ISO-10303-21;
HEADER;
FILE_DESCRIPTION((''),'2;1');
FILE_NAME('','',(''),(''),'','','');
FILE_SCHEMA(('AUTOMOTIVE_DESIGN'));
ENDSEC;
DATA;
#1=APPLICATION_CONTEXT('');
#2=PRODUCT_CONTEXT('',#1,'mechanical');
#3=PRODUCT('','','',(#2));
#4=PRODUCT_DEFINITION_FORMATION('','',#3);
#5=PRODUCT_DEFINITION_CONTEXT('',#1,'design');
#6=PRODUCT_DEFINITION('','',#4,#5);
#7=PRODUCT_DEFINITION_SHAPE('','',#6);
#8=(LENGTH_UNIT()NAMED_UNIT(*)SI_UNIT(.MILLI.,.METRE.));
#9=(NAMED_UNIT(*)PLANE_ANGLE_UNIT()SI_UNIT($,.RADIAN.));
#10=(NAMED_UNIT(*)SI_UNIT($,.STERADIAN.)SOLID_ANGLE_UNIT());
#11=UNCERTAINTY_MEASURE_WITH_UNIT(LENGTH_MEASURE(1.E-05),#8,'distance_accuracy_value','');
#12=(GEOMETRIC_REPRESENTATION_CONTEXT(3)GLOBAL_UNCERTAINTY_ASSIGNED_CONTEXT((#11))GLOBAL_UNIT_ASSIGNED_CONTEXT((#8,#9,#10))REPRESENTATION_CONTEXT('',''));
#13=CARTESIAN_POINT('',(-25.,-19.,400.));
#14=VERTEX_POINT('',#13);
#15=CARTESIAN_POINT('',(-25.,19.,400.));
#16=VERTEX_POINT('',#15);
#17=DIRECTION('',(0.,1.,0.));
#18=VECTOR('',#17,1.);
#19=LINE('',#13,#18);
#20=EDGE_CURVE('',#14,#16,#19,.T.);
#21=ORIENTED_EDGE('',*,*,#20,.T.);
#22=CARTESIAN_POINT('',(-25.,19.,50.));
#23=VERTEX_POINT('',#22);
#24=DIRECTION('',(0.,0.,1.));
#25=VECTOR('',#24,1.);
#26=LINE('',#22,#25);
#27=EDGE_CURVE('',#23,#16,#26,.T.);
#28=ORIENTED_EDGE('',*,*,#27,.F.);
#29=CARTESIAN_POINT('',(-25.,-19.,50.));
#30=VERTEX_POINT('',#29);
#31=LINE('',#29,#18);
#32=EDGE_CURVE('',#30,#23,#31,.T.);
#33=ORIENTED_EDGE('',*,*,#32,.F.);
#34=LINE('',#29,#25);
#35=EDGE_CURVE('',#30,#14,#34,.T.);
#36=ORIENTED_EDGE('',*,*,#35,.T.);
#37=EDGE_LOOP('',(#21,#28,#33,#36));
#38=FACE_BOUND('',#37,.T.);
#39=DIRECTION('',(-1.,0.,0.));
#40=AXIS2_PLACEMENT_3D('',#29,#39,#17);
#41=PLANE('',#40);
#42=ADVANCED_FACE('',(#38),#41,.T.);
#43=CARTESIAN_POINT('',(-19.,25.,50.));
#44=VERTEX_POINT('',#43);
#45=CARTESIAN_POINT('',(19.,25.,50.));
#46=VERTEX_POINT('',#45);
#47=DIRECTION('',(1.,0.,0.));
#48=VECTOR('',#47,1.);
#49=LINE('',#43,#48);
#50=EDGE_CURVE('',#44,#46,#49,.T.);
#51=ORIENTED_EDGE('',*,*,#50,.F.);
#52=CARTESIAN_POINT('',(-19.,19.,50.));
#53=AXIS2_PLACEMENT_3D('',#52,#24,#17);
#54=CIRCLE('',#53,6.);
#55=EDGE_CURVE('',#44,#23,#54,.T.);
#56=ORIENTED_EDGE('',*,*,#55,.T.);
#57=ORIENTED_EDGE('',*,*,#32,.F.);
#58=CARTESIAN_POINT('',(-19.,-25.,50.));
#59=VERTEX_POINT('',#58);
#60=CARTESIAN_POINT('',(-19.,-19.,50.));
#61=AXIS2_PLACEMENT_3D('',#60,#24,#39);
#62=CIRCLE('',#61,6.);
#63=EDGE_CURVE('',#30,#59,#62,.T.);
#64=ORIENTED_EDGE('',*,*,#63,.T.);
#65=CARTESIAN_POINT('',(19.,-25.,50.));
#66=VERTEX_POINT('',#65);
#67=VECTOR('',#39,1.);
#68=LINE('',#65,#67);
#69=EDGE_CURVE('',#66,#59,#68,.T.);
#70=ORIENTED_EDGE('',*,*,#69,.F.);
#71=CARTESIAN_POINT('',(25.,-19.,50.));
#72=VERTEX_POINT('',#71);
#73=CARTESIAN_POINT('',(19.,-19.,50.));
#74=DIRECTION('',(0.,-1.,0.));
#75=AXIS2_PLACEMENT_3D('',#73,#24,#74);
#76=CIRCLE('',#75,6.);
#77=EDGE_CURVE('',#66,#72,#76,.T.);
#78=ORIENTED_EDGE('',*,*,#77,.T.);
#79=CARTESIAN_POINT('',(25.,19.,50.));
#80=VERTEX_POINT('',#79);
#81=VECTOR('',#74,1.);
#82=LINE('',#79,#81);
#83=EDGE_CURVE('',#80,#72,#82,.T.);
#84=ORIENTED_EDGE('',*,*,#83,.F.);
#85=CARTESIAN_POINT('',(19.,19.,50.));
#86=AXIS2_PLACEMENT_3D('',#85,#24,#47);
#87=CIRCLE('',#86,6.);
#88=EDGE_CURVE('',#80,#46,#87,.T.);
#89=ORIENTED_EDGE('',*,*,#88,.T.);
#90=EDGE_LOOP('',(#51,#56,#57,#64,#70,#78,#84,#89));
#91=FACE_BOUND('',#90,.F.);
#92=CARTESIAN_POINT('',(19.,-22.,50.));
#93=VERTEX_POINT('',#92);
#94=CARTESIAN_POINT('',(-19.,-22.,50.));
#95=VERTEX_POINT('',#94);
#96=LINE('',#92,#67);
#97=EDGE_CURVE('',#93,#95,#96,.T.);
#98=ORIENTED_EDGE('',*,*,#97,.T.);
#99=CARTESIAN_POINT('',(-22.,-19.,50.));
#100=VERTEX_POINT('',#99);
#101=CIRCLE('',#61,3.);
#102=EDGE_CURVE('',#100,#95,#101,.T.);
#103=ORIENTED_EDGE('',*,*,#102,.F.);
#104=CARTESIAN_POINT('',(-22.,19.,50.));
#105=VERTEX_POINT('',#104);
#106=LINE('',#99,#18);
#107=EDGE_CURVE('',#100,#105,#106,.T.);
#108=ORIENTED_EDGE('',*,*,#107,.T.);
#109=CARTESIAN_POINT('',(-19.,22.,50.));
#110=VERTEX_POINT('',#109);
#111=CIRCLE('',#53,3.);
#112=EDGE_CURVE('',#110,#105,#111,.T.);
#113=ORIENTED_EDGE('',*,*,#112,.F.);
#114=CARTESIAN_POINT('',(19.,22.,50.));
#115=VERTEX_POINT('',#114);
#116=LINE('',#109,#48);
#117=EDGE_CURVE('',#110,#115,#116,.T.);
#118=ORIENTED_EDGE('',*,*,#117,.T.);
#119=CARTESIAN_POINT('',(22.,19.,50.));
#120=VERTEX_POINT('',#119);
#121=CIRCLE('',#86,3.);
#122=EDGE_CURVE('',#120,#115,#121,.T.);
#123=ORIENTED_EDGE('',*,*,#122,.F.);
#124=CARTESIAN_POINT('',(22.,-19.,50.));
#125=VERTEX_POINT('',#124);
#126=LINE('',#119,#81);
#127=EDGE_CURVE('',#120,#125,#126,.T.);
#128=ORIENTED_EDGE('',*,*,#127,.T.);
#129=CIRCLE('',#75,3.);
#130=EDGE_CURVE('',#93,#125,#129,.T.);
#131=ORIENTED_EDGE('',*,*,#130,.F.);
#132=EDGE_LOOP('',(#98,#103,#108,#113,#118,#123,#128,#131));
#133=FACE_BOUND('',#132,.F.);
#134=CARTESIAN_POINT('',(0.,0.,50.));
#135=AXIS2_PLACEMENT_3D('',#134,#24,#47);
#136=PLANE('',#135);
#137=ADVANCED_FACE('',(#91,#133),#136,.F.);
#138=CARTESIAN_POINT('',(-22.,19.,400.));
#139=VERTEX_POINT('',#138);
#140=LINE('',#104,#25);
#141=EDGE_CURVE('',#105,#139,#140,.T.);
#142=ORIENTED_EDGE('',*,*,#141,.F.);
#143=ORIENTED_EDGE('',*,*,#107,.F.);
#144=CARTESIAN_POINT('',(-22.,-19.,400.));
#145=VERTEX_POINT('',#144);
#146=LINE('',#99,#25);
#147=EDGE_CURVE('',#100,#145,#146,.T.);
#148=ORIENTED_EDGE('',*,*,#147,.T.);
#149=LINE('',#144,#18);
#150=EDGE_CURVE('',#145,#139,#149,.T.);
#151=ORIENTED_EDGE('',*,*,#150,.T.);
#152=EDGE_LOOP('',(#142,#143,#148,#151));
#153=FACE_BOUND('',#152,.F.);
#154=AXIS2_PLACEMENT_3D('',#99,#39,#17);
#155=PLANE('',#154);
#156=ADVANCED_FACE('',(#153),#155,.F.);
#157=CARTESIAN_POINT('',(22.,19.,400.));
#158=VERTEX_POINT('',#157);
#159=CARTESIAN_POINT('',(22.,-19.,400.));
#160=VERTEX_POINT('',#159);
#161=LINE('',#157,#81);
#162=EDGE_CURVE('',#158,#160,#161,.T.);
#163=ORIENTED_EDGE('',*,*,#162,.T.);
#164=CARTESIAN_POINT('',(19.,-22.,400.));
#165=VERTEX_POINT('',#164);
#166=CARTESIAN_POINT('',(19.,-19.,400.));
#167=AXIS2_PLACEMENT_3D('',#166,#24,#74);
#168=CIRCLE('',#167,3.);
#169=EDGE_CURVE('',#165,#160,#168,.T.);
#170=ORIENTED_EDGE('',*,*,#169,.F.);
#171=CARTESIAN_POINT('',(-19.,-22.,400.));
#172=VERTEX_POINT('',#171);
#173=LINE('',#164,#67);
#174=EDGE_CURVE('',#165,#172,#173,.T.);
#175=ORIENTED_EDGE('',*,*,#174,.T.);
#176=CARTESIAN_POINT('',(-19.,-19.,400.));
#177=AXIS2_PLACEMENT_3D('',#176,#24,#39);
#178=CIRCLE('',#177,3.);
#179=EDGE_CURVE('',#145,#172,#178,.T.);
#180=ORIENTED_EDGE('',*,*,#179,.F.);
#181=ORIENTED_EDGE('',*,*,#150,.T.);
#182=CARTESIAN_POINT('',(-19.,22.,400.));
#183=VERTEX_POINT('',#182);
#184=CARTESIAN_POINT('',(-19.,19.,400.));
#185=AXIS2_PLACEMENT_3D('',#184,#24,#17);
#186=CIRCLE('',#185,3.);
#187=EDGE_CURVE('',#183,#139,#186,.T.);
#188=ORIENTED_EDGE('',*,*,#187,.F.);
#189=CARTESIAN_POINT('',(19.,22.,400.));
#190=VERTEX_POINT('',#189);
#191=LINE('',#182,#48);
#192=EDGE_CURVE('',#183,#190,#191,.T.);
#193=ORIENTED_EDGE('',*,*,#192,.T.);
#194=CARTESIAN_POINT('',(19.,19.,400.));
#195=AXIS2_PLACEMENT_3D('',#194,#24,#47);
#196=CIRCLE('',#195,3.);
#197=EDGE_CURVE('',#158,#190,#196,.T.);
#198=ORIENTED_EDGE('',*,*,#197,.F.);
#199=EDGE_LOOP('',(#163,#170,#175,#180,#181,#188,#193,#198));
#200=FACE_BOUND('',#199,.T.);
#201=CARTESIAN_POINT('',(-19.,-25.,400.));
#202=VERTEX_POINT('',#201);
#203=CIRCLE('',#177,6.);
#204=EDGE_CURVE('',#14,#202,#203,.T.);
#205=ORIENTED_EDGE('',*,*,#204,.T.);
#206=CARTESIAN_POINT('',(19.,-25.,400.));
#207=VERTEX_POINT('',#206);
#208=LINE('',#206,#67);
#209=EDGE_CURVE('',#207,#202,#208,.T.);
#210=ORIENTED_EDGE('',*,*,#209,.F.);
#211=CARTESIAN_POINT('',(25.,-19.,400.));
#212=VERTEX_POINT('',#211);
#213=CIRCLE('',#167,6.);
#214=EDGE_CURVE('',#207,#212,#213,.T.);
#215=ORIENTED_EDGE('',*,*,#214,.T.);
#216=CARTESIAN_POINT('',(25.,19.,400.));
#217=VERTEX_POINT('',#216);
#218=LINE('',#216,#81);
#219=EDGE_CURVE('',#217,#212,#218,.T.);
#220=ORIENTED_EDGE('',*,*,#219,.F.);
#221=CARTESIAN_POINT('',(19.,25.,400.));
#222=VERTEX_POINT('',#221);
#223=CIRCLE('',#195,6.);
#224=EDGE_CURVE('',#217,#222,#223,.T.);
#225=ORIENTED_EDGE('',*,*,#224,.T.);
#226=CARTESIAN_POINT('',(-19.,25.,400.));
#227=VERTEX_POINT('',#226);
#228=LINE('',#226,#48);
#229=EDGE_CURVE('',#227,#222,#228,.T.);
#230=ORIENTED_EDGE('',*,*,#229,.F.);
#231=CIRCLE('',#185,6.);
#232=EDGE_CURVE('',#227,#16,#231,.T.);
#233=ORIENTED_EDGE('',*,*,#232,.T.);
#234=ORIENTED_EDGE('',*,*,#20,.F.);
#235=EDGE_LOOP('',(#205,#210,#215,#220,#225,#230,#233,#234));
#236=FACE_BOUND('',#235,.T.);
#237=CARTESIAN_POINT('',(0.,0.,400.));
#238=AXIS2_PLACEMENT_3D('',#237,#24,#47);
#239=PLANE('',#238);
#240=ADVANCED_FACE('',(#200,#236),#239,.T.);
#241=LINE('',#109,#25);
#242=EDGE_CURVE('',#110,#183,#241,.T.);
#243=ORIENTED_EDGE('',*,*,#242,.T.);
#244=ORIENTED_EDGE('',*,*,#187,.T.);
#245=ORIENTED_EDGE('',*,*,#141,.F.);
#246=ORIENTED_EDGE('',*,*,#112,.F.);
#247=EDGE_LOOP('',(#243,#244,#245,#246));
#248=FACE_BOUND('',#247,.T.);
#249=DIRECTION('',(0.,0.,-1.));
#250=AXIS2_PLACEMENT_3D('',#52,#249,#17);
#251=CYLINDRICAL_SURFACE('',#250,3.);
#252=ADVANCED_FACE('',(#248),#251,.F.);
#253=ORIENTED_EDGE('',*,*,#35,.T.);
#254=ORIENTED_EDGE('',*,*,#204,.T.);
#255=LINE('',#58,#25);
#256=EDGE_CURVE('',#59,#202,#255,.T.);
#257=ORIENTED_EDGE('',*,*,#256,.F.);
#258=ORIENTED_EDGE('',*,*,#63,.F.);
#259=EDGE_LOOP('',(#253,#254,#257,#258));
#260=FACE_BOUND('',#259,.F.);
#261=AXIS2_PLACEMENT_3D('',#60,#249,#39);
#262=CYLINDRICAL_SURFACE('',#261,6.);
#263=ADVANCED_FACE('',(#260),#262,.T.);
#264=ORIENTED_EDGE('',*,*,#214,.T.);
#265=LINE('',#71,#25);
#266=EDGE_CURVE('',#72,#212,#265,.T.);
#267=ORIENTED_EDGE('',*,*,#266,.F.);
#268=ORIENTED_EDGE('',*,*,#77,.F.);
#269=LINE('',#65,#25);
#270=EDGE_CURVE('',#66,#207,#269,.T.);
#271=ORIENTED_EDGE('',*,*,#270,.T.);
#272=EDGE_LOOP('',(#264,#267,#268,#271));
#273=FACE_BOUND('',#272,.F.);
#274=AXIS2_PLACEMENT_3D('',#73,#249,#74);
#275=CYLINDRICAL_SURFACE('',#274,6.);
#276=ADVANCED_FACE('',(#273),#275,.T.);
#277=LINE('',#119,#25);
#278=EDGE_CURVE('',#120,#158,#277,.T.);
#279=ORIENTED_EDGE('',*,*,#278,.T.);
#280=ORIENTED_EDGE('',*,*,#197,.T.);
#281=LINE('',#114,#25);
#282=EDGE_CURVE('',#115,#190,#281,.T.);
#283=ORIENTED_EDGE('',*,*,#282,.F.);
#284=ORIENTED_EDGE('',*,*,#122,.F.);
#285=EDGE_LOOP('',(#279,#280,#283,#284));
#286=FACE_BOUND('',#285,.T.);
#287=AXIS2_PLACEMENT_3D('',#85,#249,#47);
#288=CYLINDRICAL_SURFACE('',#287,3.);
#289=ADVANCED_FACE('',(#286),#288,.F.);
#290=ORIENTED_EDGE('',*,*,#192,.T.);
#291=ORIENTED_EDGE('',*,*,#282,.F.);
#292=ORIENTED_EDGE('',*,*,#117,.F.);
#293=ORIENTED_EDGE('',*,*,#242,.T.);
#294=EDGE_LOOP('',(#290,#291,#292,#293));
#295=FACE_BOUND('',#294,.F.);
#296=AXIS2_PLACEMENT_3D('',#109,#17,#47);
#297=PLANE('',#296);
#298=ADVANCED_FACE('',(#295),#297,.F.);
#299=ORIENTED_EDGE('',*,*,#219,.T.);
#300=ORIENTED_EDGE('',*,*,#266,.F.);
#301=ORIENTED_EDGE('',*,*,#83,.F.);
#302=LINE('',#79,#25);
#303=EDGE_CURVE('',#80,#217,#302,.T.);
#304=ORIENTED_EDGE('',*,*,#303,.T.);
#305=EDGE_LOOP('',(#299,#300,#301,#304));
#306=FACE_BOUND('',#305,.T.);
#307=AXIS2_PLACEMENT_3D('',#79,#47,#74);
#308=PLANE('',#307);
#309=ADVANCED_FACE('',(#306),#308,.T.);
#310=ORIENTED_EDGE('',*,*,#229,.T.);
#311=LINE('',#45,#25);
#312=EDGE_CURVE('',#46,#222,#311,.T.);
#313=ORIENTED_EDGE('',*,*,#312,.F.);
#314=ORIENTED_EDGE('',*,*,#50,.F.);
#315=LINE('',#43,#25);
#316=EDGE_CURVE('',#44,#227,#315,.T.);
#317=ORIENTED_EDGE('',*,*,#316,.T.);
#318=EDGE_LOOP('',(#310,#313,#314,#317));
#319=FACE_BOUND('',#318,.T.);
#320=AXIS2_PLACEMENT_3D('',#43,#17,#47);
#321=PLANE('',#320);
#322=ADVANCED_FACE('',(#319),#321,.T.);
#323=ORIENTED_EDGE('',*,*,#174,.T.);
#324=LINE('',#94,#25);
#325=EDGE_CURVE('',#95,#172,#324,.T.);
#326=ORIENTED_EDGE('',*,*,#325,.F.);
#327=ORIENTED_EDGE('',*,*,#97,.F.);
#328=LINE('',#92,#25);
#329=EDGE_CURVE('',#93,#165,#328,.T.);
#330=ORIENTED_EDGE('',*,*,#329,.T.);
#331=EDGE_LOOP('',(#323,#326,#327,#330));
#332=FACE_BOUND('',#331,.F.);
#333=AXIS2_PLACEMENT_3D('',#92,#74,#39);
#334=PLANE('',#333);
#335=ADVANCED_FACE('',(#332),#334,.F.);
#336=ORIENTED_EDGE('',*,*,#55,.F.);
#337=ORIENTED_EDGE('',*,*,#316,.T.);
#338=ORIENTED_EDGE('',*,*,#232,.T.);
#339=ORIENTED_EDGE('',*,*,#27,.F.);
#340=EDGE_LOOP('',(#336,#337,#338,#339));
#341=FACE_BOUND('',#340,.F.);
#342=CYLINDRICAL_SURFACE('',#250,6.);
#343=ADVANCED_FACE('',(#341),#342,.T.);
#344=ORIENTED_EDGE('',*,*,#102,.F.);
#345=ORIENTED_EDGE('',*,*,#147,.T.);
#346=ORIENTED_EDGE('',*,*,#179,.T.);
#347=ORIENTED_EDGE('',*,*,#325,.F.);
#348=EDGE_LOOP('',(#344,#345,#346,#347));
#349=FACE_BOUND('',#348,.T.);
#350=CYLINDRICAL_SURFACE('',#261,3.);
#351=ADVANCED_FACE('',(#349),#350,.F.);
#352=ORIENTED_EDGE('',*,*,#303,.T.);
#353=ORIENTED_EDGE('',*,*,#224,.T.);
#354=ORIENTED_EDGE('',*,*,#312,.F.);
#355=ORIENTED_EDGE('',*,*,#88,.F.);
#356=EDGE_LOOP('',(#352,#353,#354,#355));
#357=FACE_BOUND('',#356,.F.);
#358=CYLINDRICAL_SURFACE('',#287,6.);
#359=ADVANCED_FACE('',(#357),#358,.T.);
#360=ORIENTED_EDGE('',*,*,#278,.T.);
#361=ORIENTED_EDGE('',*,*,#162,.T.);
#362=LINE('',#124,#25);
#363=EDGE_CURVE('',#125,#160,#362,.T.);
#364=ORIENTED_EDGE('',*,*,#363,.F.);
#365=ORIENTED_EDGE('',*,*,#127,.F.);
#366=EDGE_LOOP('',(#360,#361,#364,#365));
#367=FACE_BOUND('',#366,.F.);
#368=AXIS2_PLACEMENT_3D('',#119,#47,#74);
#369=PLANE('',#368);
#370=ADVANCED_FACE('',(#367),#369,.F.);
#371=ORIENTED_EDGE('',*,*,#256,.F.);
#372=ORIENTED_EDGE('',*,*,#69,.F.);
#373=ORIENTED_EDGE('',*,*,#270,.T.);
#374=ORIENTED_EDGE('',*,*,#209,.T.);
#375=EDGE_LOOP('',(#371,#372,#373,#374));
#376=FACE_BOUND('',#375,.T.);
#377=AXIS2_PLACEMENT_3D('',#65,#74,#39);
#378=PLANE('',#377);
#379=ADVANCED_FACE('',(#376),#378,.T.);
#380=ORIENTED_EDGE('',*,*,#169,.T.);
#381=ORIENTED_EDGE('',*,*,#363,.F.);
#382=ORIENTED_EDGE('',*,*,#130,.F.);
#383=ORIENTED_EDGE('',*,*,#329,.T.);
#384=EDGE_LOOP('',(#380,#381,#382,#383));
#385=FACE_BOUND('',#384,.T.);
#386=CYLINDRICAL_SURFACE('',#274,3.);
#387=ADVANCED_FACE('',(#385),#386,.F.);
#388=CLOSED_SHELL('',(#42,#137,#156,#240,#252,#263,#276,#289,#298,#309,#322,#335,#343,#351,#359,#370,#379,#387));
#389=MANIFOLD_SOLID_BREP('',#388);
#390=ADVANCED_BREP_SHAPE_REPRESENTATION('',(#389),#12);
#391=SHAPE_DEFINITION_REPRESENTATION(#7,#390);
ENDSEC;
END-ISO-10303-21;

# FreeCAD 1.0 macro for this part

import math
import FreeCAD as App
import Part
import Sketcher
Q = App.Units.Quantity

doc = App.newDocument("Part")
body = doc.addObject("PartDesign::Body", "Body")

sketch1 = doc.addObject("Sketcher::SketchObject", "Sketch")
body.addObject(sketch1)
sketch1.AttachmentSupport = (doc.XY_Plane, [""])
sketch1.MapMode = "FlatFace"
sketch1.AttachmentOffset = App.Placement(App.Vector(0, 0, 50), App.Rotation())
sketch1.addGeometry([
    Part.LineSegment(App.Vector(-25, 19, 0), App.Vector(-25, -19, 0)),
    Part.ArcOfCircle(Part.Circle(App.Vector(-19, -19, 0), App.Vector(0, 0, 1), 6), math.radians(180), math.radians(270)),
    Part.LineSegment(App.Vector(-19, -25, 0), App.Vector(19, -25, 0)),
    Part.ArcOfCircle(Part.Circle(App.Vector(19, -19, 0), App.Vector(0, 0, 1), 6), math.radians(-90), math.radians(0)),
    Part.LineSegment(App.Vector(25, -19, 0), App.Vector(25, 19, 0)),
    Part.ArcOfCircle(Part.Circle(App.Vector(19, 19, 0), App.Vector(0, 0, 1), 6), math.radians(0), math.radians(90)),
    Part.LineSegment(App.Vector(19, 25, 0), App.Vector(-19, 25, 0)),
    Part.ArcOfCircle(Part.Circle(App.Vector(-19, 19, 0), App.Vector(0, 0, 1), 6), math.radians(90), math.radians(180)),
    Part.ArcOfCircle(Part.Circle(App.Vector(-19, 19, 0), App.Vector(0, 0, 1), 3), math.radians(90), math.radians(180)),
    Part.LineSegment(App.Vector(-19, 22, 0), App.Vector(19, 22, 0)),
    Part.ArcOfCircle(Part.Circle(App.Vector(19, 19, 0), App.Vector(0, 0, 1), 3), math.radians(0), math.radians(90)),
    Part.LineSegment(App.Vector(22, 19, 0), App.Vector(22, -19, 0)),
    Part.ArcOfCircle(Part.Circle(App.Vector(19, -19, 0), App.Vector(0, 0, 1), 3), math.radians(-90), math.radians(0)),
    Part.LineSegment(App.Vector(19, -22, 0), App.Vector(-19, -22, 0)),
    Part.ArcOfCircle(Part.Circle(App.Vector(-19, -19, 0), App.Vector(0, 0, 1), 3), math.radians(180), math.radians(270)),
    Part.LineSegment(App.Vector(-22, -19, 0), App.Vector(-22, 19, 0)),
], False)
sketch1.addConstraint([
    Sketcher.Constraint("Tangent", 0, 2, 1, 1),
    Sketcher.Constraint("Tangent", 1, 2, 2, 1),
    Sketcher.Constraint("Tangent", 2, 2, 3, 1),
    Sketcher.Constraint("Tangent", 3, 2, 4, 1),
    Sketcher.Constraint("Tangent", 4, 2, 5, 1),
    Sketcher.Constraint("Tangent", 5, 2, 6, 1),
    Sketcher.Constraint("Tangent", 6, 2, 7, 1),
    Sketcher.Constraint("Tangent", 7, 2, 0, 1),
    Sketcher.Constraint("Tangent", 8, 1, 9, 1),
    Sketcher.Constraint("Tangent", 9, 2, 10, 2),
    Sketcher.Constraint("Tangent", 10, 1, 11, 1),
    Sketcher.Constraint("Tangent", 11, 2, 12, 2),
    Sketcher.Constraint("Tangent", 12, 1, 13, 1),
    Sketcher.Constraint("Tangent", 13, 2, 14, 2),
    Sketcher.Constraint("Tangent", 14, 1, 15, 1),
    Sketcher.Constraint("Tangent", 15, 2, 8, 2),
    Sketcher.Constraint("Vertical", 0),
    Sketcher.Constraint("Horizontal", 2),
    Sketcher.Constraint("Vertical", 4),
    Sketcher.Constraint("Horizontal", 6),
    Sketcher.Constraint("Horizontal", 9),
    Sketcher.Constraint("Vertical", 11),
    Sketcher.Constraint("Horizontal", 13),
    Sketcher.Constraint("Vertical", 15),
    Sketcher.Constraint("Coincident", 8, 3, 7, 3),
    Sketcher.Constraint("Coincident", 10, 3, 5, 3),
    Sketcher.Constraint("Coincident", 12, 3, 3, 3),
    Sketcher.Constraint("Equal", 1, 3),
    Sketcher.Constraint("Equal", 3, 5),
    Sketcher.Constraint("Equal", 5, 7),
    Sketcher.Constraint("Equal", 12, 14),
    Sketcher.Constraint("Symmetric", 1, 3, 5, 3, -1, 1),
    Sketcher.Constraint("Equal", 13, 0),
    Sketcher.Constraint("Radius", 1, Q("6 mm")),
    Sketcher.Constraint("Radius", 8, Q("3 mm")),
    Sketcher.Constraint("DistanceX", 0, 2, -1, 1, Q("25 mm")),
])
pad1 = doc.addObject("PartDesign::Pad", "Pad")
body.addObject(pad1)
pad1.Profile = sketch1
pad1.Length = 350

doc.recompute()
